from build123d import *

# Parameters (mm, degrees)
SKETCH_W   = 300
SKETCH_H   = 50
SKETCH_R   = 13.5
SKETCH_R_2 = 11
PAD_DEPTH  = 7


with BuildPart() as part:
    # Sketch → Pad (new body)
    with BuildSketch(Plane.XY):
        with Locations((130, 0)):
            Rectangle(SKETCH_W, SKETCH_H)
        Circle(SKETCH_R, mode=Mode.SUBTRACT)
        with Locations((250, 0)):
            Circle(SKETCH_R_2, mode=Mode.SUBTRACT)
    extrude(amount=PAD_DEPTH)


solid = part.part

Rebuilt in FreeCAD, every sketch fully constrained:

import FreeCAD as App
import Part
import Sketcher
from FreeCAD import Vector

doc = App.newDocument("Part")
body = doc.addObject("PartDesign::Body", "Body")

# Sketch on XY plane
sketch1 = body.newObject("Sketcher::SketchObject", "Sketch")
sketch1.AttachmentSupport = (doc.getObject("XY_Plane"), [""])
sketch1.MapMode = "FlatFace"
sketch1.addGeometry([
    Part.LineSegment(Vector(-20, 25, 0), Vector(-20, -25, 0)),  # 0
    Part.LineSegment(Vector(-20, -25, 0), Vector(280, -25, 0)),  # 1
    Part.LineSegment(Vector(280, -25, 0), Vector(280, 25, 0)),  # 2
    Part.LineSegment(Vector(280, 25, 0), Vector(-20, 25, 0)),  # 3
    Part.Circle(Vector(0, 0, 0), Vector(0, 0, 1), 14),  # 4
    Part.Circle(Vector(250, 0, 0), Vector(0, 0, 1), 11),  # 5
], False)
sketch1.addConstraint([
    Sketcher.Constraint("Coincident", 0, 2, 1, 1),
    Sketcher.Constraint("Coincident", 1, 2, 2, 1),
    Sketcher.Constraint("Coincident", 2, 2, 3, 1),
    Sketcher.Constraint("Coincident", 3, 2, 0, 1),
    Sketcher.Constraint("Vertical", 0),
    Sketcher.Constraint("Horizontal", 1),
    Sketcher.Constraint("Vertical", 2),
    Sketcher.Constraint("Horizontal", 3),
    Sketcher.Constraint("Coincident", 4, 3, -1, 1),
    Sketcher.Constraint("PointOnObject", 5, 3, -1),
    Sketcher.Constraint("Diameter", 4, 27.0),
    Sketcher.Constraint("Diameter", 5, 22.0),
    Sketcher.Constraint("DistanceX", 1, 1, 1, 2, 300.0),
    Sketcher.Constraint("DistanceY", 0, 2, 0, 1, 50.0),
    Sketcher.Constraint("DistanceX", -1, 1, 5, 3, 250.0),
    Sketcher.Constraint("DistanceX", 0, 2, -1, 1, 20.0),
    Sketcher.Constraint("DistanceY", 0, 2, -1, 1, 25.0),
])
pad1 = body.newObject("PartDesign::Pad", "Pad")
pad1.Profile = sketch1
pad1.Length = 7

doc.recompute()
